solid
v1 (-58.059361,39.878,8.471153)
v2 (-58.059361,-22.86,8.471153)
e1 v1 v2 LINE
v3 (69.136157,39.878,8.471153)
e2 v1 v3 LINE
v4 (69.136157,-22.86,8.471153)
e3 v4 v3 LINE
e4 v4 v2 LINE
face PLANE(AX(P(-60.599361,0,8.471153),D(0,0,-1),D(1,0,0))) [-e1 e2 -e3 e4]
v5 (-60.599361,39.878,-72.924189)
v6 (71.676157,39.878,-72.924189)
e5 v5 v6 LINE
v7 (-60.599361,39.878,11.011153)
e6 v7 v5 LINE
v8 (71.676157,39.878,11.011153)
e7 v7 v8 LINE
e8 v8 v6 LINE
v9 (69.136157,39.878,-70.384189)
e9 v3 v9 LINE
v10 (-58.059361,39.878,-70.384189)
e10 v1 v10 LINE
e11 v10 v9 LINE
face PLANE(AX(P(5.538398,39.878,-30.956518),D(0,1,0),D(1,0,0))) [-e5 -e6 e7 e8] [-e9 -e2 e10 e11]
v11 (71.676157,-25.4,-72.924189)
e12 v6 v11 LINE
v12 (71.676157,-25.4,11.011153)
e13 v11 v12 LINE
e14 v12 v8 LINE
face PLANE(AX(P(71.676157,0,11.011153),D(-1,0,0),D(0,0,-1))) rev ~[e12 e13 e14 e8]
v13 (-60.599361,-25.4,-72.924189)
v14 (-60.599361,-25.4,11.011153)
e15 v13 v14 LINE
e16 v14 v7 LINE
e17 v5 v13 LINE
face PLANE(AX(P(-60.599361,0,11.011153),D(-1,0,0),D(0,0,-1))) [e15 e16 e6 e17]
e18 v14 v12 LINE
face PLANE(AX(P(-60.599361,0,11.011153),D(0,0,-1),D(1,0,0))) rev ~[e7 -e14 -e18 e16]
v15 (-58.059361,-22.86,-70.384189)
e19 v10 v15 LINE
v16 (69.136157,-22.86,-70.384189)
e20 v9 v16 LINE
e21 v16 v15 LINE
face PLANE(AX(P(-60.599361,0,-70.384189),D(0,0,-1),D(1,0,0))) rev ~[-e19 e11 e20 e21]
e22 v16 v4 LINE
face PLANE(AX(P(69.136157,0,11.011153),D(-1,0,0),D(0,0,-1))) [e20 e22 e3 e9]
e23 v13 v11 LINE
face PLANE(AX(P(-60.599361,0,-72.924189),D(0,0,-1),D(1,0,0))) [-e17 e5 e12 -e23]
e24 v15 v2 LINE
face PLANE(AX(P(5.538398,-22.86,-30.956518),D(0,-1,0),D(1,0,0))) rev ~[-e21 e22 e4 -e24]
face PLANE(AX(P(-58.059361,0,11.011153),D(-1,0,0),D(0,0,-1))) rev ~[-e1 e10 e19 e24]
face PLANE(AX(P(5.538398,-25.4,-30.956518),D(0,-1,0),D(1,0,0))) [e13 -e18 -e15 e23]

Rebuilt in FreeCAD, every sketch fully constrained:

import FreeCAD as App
import Part
import Sketcher
Q = App.Units.Quantity


def faces_at(feature, points):
    """Names of the faces that lie closest to the given points."""
    faces = feature.Shape.Faces
    near = lambda p: min(range(len(faces)), key=lambda i: faces[i].distToShape(Part.Vertex(*p))[0])
    return sorted({f"Face{near(p) + 1}" for p in points})


def add_polygon(sketch, points):
    """Adds a closed chain of lines whose ends are joined by coincident constraints."""
    first, n = sketch.GeometryCount, len(points)
    for a, b in zip(points, points[1:] + points[:1]):
        sketch.addGeometry(Part.LineSegment(App.Vector(*a, 0), App.Vector(*b, 0)), False)
    for i in range(n):
        sketch.addConstraint(Sketcher.Constraint("Coincident", first + i, 2, first + (i + 1) % n, 1))

doc = App.newDocument("Part")
body = doc.addObject("PartDesign::Body", "Body")

# Sketch on XZ plane
sketch1 = body.newObject("Sketcher::SketchObject", "Sketch")
sketch1.AttachmentSupport = (doc.getObject("XZ_Plane"), [""])
sketch1.MapMode = "FlatFace"
add_polygon(sketch1, [(-61, 11), (-61, -73), (72, -73), (72, 11)])  # lines 0-3
sketch1.addConstraint(Sketcher.Constraint("Vertical", 0))
sketch1.addConstraint(Sketcher.Constraint("Horizontal", 1))
sketch1.addConstraint(Sketcher.Constraint("Vertical", 2))
sketch1.addConstraint(Sketcher.Constraint("Horizontal", 3))
sketch1.addConstraint(Sketcher.Constraint("DistanceX", 1, 1, 1, 2, Q("132.275518 mm")))
sketch1.addConstraint(Sketcher.Constraint("DistanceY", 0, 2, 0, 1, Q("83.935342 mm")))
sketch1.addConstraint(Sketcher.Constraint("DistanceX", 0, 2, -1, 1, Q("60.599361 mm")))
sketch1.addConstraint(Sketcher.Constraint("DistanceY", 0, 2, -1, 1, Q("72.924189 mm")))
pad1 = body.newObject("PartDesign::Pad", "Pad")
pad1.Profile = sketch1
pad1.Length = Q("1 in")

# Sketch on XZ plane
sketch2 = body.newObject("Sketcher::SketchObject", "Sketch001")
sketch2.AttachmentSupport = (doc.getObject("XZ_Plane"), [""])
sketch2.MapMode = "FlatFace"
add_polygon(sketch2, [(-61, -73), (-61, 11), (72, 11), (72, -73)])  # lines 0-3
sketch2.addConstraint(Sketcher.Constraint("Vertical", 0))
sketch2.addConstraint(Sketcher.Constraint("Horizontal", 1))
sketch2.addConstraint(Sketcher.Constraint("Vertical", 2))
sketch2.addConstraint(Sketcher.Constraint("Horizontal", 3))
sketch2.addConstraint(Sketcher.Constraint("DistanceX", 1, 1, 1, 2, Q("132.275518 mm")))
sketch2.addConstraint(Sketcher.Constraint("DistanceY", 0, 1, 0, 2, Q("83.935342 mm")))
sketch2.addConstraint(Sketcher.Constraint("DistanceX", 0, 2, -1, 1, Q("60.599361 mm")))
sketch2.addConstraint(Sketcher.Constraint("DistanceY", 2, 2, -1, 1, Q("72.924189 mm")))
pad2 = body.newObject("PartDesign::Pad", "Pad001")
pad2.Profile = sketch2
pad2.Length = Q("1.57 in")
pad2.Reversed = True
doc.recompute()

thickness = body.newObject("PartDesign::Thickness", "Thickness")
thickness.Base = (pad2, faces_at(pad2, [(5.538, 39.878, -30.957)]))
thickness.Value = Q("0.1 in")
thickness.Reversed = True
thickness.Join = "Arc"

doc.recompute()
